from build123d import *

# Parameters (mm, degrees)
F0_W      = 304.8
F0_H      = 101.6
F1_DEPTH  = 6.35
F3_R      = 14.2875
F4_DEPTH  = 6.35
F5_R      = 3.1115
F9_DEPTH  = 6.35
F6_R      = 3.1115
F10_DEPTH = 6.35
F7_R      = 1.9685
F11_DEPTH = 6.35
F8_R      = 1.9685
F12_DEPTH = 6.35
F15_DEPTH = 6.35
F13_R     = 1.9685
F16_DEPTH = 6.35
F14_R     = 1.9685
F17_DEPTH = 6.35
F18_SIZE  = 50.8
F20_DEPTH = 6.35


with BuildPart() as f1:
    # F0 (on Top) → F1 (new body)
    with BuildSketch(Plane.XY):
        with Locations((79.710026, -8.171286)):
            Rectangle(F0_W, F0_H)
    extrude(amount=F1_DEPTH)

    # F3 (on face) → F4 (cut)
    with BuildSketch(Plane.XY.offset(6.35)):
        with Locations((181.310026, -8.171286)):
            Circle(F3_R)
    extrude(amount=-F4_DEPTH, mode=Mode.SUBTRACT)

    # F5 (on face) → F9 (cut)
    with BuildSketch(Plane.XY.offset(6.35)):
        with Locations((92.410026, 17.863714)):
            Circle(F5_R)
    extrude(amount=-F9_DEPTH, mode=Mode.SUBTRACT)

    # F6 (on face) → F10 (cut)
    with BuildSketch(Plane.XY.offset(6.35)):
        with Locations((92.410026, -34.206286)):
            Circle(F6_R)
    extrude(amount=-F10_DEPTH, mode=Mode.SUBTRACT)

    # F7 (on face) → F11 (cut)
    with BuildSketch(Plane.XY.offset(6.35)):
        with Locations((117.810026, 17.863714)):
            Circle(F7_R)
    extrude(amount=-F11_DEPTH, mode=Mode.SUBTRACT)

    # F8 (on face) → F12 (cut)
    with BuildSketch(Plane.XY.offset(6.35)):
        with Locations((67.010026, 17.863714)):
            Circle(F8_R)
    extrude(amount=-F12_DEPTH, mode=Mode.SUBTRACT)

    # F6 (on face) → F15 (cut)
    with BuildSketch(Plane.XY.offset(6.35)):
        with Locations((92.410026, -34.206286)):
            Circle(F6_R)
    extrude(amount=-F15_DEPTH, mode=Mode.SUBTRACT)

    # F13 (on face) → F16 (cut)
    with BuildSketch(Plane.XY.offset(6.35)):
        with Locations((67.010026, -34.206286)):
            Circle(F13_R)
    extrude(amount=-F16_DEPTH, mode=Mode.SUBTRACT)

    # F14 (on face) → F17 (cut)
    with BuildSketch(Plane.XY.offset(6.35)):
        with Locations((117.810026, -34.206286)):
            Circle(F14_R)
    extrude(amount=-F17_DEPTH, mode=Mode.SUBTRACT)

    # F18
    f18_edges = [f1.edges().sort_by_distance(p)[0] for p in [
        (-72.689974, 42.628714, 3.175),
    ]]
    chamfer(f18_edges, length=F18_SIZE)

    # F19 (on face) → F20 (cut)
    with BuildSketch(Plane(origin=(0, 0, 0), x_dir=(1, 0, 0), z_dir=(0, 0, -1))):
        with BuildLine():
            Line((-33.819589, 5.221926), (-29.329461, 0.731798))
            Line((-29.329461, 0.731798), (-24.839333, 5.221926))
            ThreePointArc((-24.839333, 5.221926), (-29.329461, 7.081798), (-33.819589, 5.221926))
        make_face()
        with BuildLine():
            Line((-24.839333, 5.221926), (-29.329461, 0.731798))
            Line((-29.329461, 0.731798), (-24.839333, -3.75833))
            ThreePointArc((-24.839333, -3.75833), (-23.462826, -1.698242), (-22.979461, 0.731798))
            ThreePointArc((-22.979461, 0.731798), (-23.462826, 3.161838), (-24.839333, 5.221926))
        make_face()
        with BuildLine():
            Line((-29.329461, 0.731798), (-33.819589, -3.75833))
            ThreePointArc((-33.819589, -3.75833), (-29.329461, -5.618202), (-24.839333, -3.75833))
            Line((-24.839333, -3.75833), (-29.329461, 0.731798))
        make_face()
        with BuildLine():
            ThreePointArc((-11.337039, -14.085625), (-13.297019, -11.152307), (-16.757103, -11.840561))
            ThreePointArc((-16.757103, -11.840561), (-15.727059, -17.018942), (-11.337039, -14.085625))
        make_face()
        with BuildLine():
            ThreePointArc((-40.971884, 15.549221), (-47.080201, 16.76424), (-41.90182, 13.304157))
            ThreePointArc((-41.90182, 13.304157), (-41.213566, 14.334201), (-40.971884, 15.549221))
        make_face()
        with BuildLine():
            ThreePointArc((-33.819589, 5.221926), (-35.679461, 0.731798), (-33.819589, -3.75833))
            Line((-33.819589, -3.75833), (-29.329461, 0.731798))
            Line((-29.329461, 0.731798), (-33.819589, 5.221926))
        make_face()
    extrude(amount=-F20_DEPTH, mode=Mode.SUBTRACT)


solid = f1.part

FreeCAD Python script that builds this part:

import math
import FreeCAD as App
import Part
import Sketcher

V = App.Vector
Q = App.Units.Quantity


def edges_at(feature, points):
    """Names of the edges that pass closest to the given points."""
    edges = feature.Shape.Edges
    near = lambda p: min(range(len(edges)), key=lambda i: edges[i].distToShape(Part.Vertex(*p))[0])
    return sorted({f"Edge{near(p) + 1}" for p in points})


def add_polygon(sketch, points):
    """Adds a closed chain of lines whose ends are joined by coincident constraints."""
    first, n = sketch.GeometryCount, len(points)
    for a, b in zip(points, points[1:] + points[:1]):
        sketch.addGeometry(Part.LineSegment(App.Vector(*a, 0), App.Vector(*b, 0)), False)
    for i in range(n):
        sketch.addConstraint(Sketcher.Constraint("Coincident", first + i, 2, first + (i + 1) % n, 1))

doc = App.newDocument("Part")
body = doc.addObject("PartDesign::Body", "Body")

# Sketch on XY plane
sketch1 = body.newObject("Sketcher::SketchObject", "Sketch")
sketch1.AttachmentSupport = (doc.getObject("XY_Plane"), [""])
sketch1.MapMode = "FlatFace"
add_polygon(sketch1, [(-72.689974, 42.628714), (-72.689974, -58.971286), (232.110026, -58.971286), (232.110026, 42.628714)])  # lines 0-3
sketch1.addConstraint(Sketcher.Constraint("Vertical", 0))
sketch1.addConstraint(Sketcher.Constraint("Horizontal", 1))
sketch1.addConstraint(Sketcher.Constraint("Vertical", 2))
sketch1.addConstraint(Sketcher.Constraint("Horizontal", 3))
sketch1.addConstraint(Sketcher.Constraint("DistanceX", 1, 1, 1, 2, Q("12 in")))
sketch1.addConstraint(Sketcher.Constraint("DistanceY", 0, 2, 0, 1, Q("4 in")))
sketch1.addConstraint(Sketcher.Constraint("DistanceX", 0, 2, -1, 1, 72.689974))
sketch1.addConstraint(Sketcher.Constraint("DistanceY", 0, 2, -1, 1, 58.971286))
pad1 = body.newObject("PartDesign::Pad", "Pad")
pad1.Profile = sketch1
pad1.Length = Q("0.25 in")

# Sketch on XY plane
sketch2 = body.newObject("Sketcher::SketchObject", "Sketch001")
sketch2.AttachmentSupport = (doc.getObject("XY_Plane"), [""])
sketch2.MapMode = "FlatFace"
sketch2.AttachmentOffset = App.Placement(V(0, 0, 0.25 * 25.4), App.Rotation())
sketch2.addGeometry(Part.Circle(V(181.310026, -8.171286, 0), V(0, 0, 1), 14.2875), False)
sketch2.addConstraint(Sketcher.Constraint("Diameter", 0, Q("1.125 in")))
sketch2.addConstraint(Sketcher.Constraint("DistanceX", -1, 1, 0, 3, 181.310026))
sketch2.addConstraint(Sketcher.Constraint("DistanceY", 0, 3, -1, 1, 8.171286))
pocket1 = body.newObject("PartDesign::Pocket", "Pocket")
pocket1.Profile = sketch2
pocket1.Length = Q("0.25 in")

# Sketch on XY plane
sketch3 = body.newObject("Sketcher::SketchObject", "Sketch002")
sketch3.AttachmentSupport = (doc.getObject("XY_Plane"), [""])
sketch3.MapMode = "FlatFace"
sketch3.AttachmentOffset = App.Placement(V(0, 0, 0.25 * 25.4), App.Rotation())
sketch3.addGeometry(Part.Circle(V(92.410026, 17.863714, 0), V(0, 0, 1), 3.1115), False)
sketch3.addConstraint(Sketcher.Constraint("Diameter", 0, Q("0.245 in")))
sketch3.addConstraint(Sketcher.Constraint("DistanceX", -1, 1, 0, 3, 92.410026))
sketch3.addConstraint(Sketcher.Constraint("DistanceY", -1, 1, 0, 3, 17.863714))
pocket2 = body.newObject("PartDesign::Pocket", "Pocket001")
pocket2.Profile = sketch3
pocket2.Length = Q("0.25 in")

# Sketch on XY plane
sketch4 = body.newObject("Sketcher::SketchObject", "Sketch003")
sketch4.AttachmentSupport = (doc.getObject("XY_Plane"), [""])
sketch4.MapMode = "FlatFace"
sketch4.AttachmentOffset = App.Placement(V(0, 0, 0.25 * 25.4), App.Rotation())
sketch4.addGeometry(Part.Circle(V(92.410026, -34.206286, 0), V(0, 0, 1), 3.1115), False)
sketch4.addConstraint(Sketcher.Constraint("Diameter", 0, Q("0.245 in")))
sketch4.addConstraint(Sketcher.Constraint("DistanceX", -1, 1, 0, 3, 92.410026))
sketch4.addConstraint(Sketcher.Constraint("DistanceY", 0, 3, -1, 1, 34.206286))
pocket3 = body.newObject("PartDesign::Pocket", "Pocket002")
pocket3.Profile = sketch4
pocket3.Length = Q("0.25 in")

# Sketch on XY plane
sketch5 = body.newObject("Sketcher::SketchObject", "Sketch004")
sketch5.AttachmentSupport = (doc.getObject("XY_Plane"), [""])
sketch5.MapMode = "FlatFace"
sketch5.AttachmentOffset = App.Placement(V(0, 0, 0.25 * 25.4), App.Rotation())
sketch5.addGeometry(Part.Circle(V(117.810026, 17.863714, 0), V(0, 0, 1), 1.9685), False)
sketch5.addConstraint(Sketcher.Constraint("Diameter", 0, Q("0.155 in")))
sketch5.addConstraint(Sketcher.Constraint("DistanceX", -1, 1, 0, 3, 117.810026))
sketch5.addConstraint(Sketcher.Constraint("DistanceY", -1, 1, 0, 3, 17.863714))
pocket4 = body.newObject("PartDesign::Pocket", "Pocket003")
pocket4.Profile = sketch5
pocket4.Length = Q("0.25 in")

# Sketch on XY plane
sketch6 = body.newObject("Sketcher::SketchObject", "Sketch005")
sketch6.AttachmentSupport = (doc.getObject("XY_Plane"), [""])
sketch6.MapMode = "FlatFace"
sketch6.AttachmentOffset = App.Placement(V(0, 0, 0.25 * 25.4), App.Rotation())
sketch6.addGeometry(Part.Circle(V(67.010026, 17.863714, 0), V(0, 0, 1), 1.9685), False)
sketch6.addConstraint(Sketcher.Constraint("Diameter", 0, Q("0.155 in")))
sketch6.addConstraint(Sketcher.Constraint("DistanceX", -1, 1, 0, 3, 67.010026))
sketch6.addConstraint(Sketcher.Constraint("DistanceY", -1, 1, 0, 3, 17.863714))
pocket5 = body.newObject("PartDesign::Pocket", "Pocket004")
pocket5.Profile = sketch6
pocket5.Length = Q("0.25 in")

# Sketch on XY plane
sketch7 = body.newObject("Sketcher::SketchObject", "Sketch006")
sketch7.AttachmentSupport = (doc.getObject("XY_Plane"), [""])
sketch7.MapMode = "FlatFace"
sketch7.AttachmentOffset = App.Placement(V(0, 0, 0.25 * 25.4), App.Rotation())
sketch7.addGeometry(Part.Circle(V(92.410026, -34.206286, 0), V(0, 0, 1), 3.1115), False)
sketch7.addConstraint(Sketcher.Constraint("Diameter", 0, Q("0.245 in")))
sketch7.addConstraint(Sketcher.Constraint("DistanceX", -1, 1, 0, 3, 92.410026))
sketch7.addConstraint(Sketcher.Constraint("DistanceY", 0, 3, -1, 1, 34.206286))
pocket6 = body.newObject("PartDesign::Pocket", "Pocket005")
pocket6.Profile = sketch7
pocket6.Length = Q("0.25 in")

# Sketch on XY plane
sketch8 = body.newObject("Sketcher::SketchObject", "Sketch007")
sketch8.AttachmentSupport = (doc.getObject("XY_Plane"), [""])
sketch8.MapMode = "FlatFace"
sketch8.AttachmentOffset = App.Placement(V(0, 0, 0.25 * 25.4), App.Rotation())
sketch8.addGeometry(Part.Circle(V(67.010026, -34.206286, 0), V(0, 0, 1), 1.9685), False)
sketch8.addConstraint(Sketcher.Constraint("Diameter", 0, Q("0.155 in")))
sketch8.addConstraint(Sketcher.Constraint("DistanceX", -1, 1, 0, 3, 67.010026))
sketch8.addConstraint(Sketcher.Constraint("DistanceY", 0, 3, -1, 1, 34.206286))
pocket7 = body.newObject("PartDesign::Pocket", "Pocket006")
pocket7.Profile = sketch8
pocket7.Length = Q("0.25 in")

# Sketch on XY plane
sketch9 = body.newObject("Sketcher::SketchObject", "Sketch008")
sketch9.AttachmentSupport = (doc.getObject("XY_Plane"), [""])
sketch9.MapMode = "FlatFace"
sketch9.AttachmentOffset = App.Placement(V(0, 0, 0.25 * 25.4), App.Rotation())
sketch9.addGeometry(Part.Circle(V(117.810026, -34.206286, 0), V(0, 0, 1), 1.9685), False)
sketch9.addConstraint(Sketcher.Constraint("Diameter", 0, Q("0.155 in")))
sketch9.addConstraint(Sketcher.Constraint("DistanceX", -1, 1, 0, 3, 117.810026))
sketch9.addConstraint(Sketcher.Constraint("DistanceY", 0, 3, -1, 1, 34.206286))
pocket8 = body.newObject("PartDesign::Pocket", "Pocket007")
pocket8.Profile = sketch9
pocket8.Length = Q("0.25 in")
doc.recompute()

chamfer = body.newObject("PartDesign::Chamfer", "Chamfer")
chamfer.Base = (pocket8, edges_at(pocket8, [(-72.69, 42.629, 3.175)]))
chamfer.Size = Q("2 in")

# Sketch on XY plane
sketch10 = body.newObject("Sketcher::SketchObject", "Sketch009")
sketch10.AttachmentSupport = (doc.getObject("XY_Plane"), [""])
sketch10.MapMode = "FlatFace"
sketch10.addGeometry(Part.ArcOfCircle(Part.Circle(V(-29.329461, -0.731798, 0), V(0, 0, 1), 6.35), math.radians(44.999998), math.radians(135.000002)), False)
sketch10.addGeometry(Part.ArcOfCircle(Part.Circle(V(-29.32946, -0.731798, 0), V(0, 0, 1), 6.349999), math.radians(-0.000003), math.radians(45.000005)), False)
sketch10.addGeometry(Part.ArcOfCircle(Part.Circle(V(-29.32946, -0.731798, 0), V(0, 0, 1), 6.349999), math.radians(-45.000005), math.radians(0.000003)), False)
sketch10.addGeometry(Part.ArcOfCircle(Part.Circle(V(-29.329461, -0.731798, 0), V(0, 0, 1), 6.35), math.radians(-135.000002), math.radians(-44.999998)), False)
sketch10.addGeometry(Part.ArcOfCircle(Part.Circle(V(-29.329461, -0.731798, 0), V(0, 0, 1), 6.35), math.radians(134.999998), math.radians(225.000002)), False)
sketch10.addGeometry(Part.ArcOfCircle(Part.Circle(V(-14.512039, 14.085624, 0), V(0, 0, 1), 3.175), math.radians(-135.000014), math.radians(0.000014)), False)
sketch10.addGeometry(Part.ArcOfCircle(Part.Circle(V(-14.512039, 14.085625, 0), V(0, 0, 1), 3.175), math.radians(0.000005), math.radians(224.999995)), False)
sketch10.addGeometry(Part.ArcOfCircle(Part.Circle(V(-44.146884, -15.549221, 0), V(0, 0, 1), 3.175), math.radians(45.000004), math.radians(359.999998)), False)
sketch10.addGeometry(Part.ArcOfCircle(Part.Circle(V(-44.146878, -15.549218, 0), V(0, 0, 1), 3.174994), math.radians(-0.000045), math.radians(45.000047)), False)
sketch10.addConstraint(Sketcher.Constraint("Tangent", 0, 1, 1, 2))
sketch10.addConstraint(Sketcher.Constraint("Tangent", 1, 1, 2, 2))
sketch10.addConstraint(Sketcher.Constraint("Tangent", 2, 1, 3, 2))
sketch10.addConstraint(Sketcher.Constraint("Tangent", 3, 1, 4, 2))
sketch10.addConstraint(Sketcher.Constraint("Tangent", 4, 1, 0, 2))
sketch10.addConstraint(Sketcher.Constraint("Tangent", 5, 1, 6, 2))
sketch10.addConstraint(Sketcher.Constraint("Coincident", 6, 1, 5, 2))
sketch10.addConstraint(Sketcher.Constraint("Tangent", 7, 1, 8, 2))
sketch10.addConstraint(Sketcher.Constraint("Coincident", 8, 1, 7, 2))
sketch10.addConstraint(Sketcher.Constraint("Coincident", 2, 3, 0, 3))
sketch10.addConstraint(Sketcher.Constraint("Equal", 6, 7))
sketch10.addConstraint(Sketcher.Constraint("Horizontal", 4, 3, 1, 1))
sketch10.addConstraint(Sketcher.Constraint("Horizontal", 2, 1, 3, 1))
sketch10.addConstraint(Sketcher.Constraint("Horizontal", 0, 1, 4, 1))
sketch10.addConstraint(Sketcher.Constraint("Horizontal", 5, 3, 6, 1))
sketch10.addConstraint(Sketcher.Constraint("Horizontal", 7, 3, 8, 1))
sketch10.addConstraint(Sketcher.Constraint("Vertical", 0, 1, 2, 1))
sketch10.addConstraint(Sketcher.Constraint("Radius", 0, Q("0.25 in")))
sketch10.addConstraint(Sketcher.Constraint("Radius", 5, Q("0.125 in")))
sketch10.addConstraint(Sketcher.Constraint("DistanceY", 2, 3, -1, 1, 0.731798))
sketch10.addConstraint(Sketcher.Constraint("DistanceX", 0, 3, -1, 1, 29.329461))
sketch10.addConstraint(Sketcher.Constraint("DistanceX", 5, 3, -1, 1, 14.512039))
sketch10.addConstraint(Sketcher.Constraint("DistanceY", 7, 3, -1, 1, 15.549221))
sketch10.addConstraint(Sketcher.Constraint("DistanceY", -1, 1, 0, 1, 3.75833))
sketch10.addConstraint(Sketcher.Constraint("DistanceY", -1, 1, 5, 1, 11.840561))
sketch10.addConstraint(Sketcher.Constraint("DistanceX", 7, 1, -1, 1, 41.90182))
sketch10.addConstraint(Sketcher.Constraint("DistanceY", 1, 3, 5, 3, 14.817422))
sketch10.addConstraint(Sketcher.Constraint("DistanceY", 8, 3, 7, 1, 2.245061))
pocket9 = body.newObject("PartDesign::Pocket", "Pocket008")
pocket9.Profile = sketch10
pocket9.Length = Q("0.25 in")
pocket9.Reversed = True

doc.recompute()
